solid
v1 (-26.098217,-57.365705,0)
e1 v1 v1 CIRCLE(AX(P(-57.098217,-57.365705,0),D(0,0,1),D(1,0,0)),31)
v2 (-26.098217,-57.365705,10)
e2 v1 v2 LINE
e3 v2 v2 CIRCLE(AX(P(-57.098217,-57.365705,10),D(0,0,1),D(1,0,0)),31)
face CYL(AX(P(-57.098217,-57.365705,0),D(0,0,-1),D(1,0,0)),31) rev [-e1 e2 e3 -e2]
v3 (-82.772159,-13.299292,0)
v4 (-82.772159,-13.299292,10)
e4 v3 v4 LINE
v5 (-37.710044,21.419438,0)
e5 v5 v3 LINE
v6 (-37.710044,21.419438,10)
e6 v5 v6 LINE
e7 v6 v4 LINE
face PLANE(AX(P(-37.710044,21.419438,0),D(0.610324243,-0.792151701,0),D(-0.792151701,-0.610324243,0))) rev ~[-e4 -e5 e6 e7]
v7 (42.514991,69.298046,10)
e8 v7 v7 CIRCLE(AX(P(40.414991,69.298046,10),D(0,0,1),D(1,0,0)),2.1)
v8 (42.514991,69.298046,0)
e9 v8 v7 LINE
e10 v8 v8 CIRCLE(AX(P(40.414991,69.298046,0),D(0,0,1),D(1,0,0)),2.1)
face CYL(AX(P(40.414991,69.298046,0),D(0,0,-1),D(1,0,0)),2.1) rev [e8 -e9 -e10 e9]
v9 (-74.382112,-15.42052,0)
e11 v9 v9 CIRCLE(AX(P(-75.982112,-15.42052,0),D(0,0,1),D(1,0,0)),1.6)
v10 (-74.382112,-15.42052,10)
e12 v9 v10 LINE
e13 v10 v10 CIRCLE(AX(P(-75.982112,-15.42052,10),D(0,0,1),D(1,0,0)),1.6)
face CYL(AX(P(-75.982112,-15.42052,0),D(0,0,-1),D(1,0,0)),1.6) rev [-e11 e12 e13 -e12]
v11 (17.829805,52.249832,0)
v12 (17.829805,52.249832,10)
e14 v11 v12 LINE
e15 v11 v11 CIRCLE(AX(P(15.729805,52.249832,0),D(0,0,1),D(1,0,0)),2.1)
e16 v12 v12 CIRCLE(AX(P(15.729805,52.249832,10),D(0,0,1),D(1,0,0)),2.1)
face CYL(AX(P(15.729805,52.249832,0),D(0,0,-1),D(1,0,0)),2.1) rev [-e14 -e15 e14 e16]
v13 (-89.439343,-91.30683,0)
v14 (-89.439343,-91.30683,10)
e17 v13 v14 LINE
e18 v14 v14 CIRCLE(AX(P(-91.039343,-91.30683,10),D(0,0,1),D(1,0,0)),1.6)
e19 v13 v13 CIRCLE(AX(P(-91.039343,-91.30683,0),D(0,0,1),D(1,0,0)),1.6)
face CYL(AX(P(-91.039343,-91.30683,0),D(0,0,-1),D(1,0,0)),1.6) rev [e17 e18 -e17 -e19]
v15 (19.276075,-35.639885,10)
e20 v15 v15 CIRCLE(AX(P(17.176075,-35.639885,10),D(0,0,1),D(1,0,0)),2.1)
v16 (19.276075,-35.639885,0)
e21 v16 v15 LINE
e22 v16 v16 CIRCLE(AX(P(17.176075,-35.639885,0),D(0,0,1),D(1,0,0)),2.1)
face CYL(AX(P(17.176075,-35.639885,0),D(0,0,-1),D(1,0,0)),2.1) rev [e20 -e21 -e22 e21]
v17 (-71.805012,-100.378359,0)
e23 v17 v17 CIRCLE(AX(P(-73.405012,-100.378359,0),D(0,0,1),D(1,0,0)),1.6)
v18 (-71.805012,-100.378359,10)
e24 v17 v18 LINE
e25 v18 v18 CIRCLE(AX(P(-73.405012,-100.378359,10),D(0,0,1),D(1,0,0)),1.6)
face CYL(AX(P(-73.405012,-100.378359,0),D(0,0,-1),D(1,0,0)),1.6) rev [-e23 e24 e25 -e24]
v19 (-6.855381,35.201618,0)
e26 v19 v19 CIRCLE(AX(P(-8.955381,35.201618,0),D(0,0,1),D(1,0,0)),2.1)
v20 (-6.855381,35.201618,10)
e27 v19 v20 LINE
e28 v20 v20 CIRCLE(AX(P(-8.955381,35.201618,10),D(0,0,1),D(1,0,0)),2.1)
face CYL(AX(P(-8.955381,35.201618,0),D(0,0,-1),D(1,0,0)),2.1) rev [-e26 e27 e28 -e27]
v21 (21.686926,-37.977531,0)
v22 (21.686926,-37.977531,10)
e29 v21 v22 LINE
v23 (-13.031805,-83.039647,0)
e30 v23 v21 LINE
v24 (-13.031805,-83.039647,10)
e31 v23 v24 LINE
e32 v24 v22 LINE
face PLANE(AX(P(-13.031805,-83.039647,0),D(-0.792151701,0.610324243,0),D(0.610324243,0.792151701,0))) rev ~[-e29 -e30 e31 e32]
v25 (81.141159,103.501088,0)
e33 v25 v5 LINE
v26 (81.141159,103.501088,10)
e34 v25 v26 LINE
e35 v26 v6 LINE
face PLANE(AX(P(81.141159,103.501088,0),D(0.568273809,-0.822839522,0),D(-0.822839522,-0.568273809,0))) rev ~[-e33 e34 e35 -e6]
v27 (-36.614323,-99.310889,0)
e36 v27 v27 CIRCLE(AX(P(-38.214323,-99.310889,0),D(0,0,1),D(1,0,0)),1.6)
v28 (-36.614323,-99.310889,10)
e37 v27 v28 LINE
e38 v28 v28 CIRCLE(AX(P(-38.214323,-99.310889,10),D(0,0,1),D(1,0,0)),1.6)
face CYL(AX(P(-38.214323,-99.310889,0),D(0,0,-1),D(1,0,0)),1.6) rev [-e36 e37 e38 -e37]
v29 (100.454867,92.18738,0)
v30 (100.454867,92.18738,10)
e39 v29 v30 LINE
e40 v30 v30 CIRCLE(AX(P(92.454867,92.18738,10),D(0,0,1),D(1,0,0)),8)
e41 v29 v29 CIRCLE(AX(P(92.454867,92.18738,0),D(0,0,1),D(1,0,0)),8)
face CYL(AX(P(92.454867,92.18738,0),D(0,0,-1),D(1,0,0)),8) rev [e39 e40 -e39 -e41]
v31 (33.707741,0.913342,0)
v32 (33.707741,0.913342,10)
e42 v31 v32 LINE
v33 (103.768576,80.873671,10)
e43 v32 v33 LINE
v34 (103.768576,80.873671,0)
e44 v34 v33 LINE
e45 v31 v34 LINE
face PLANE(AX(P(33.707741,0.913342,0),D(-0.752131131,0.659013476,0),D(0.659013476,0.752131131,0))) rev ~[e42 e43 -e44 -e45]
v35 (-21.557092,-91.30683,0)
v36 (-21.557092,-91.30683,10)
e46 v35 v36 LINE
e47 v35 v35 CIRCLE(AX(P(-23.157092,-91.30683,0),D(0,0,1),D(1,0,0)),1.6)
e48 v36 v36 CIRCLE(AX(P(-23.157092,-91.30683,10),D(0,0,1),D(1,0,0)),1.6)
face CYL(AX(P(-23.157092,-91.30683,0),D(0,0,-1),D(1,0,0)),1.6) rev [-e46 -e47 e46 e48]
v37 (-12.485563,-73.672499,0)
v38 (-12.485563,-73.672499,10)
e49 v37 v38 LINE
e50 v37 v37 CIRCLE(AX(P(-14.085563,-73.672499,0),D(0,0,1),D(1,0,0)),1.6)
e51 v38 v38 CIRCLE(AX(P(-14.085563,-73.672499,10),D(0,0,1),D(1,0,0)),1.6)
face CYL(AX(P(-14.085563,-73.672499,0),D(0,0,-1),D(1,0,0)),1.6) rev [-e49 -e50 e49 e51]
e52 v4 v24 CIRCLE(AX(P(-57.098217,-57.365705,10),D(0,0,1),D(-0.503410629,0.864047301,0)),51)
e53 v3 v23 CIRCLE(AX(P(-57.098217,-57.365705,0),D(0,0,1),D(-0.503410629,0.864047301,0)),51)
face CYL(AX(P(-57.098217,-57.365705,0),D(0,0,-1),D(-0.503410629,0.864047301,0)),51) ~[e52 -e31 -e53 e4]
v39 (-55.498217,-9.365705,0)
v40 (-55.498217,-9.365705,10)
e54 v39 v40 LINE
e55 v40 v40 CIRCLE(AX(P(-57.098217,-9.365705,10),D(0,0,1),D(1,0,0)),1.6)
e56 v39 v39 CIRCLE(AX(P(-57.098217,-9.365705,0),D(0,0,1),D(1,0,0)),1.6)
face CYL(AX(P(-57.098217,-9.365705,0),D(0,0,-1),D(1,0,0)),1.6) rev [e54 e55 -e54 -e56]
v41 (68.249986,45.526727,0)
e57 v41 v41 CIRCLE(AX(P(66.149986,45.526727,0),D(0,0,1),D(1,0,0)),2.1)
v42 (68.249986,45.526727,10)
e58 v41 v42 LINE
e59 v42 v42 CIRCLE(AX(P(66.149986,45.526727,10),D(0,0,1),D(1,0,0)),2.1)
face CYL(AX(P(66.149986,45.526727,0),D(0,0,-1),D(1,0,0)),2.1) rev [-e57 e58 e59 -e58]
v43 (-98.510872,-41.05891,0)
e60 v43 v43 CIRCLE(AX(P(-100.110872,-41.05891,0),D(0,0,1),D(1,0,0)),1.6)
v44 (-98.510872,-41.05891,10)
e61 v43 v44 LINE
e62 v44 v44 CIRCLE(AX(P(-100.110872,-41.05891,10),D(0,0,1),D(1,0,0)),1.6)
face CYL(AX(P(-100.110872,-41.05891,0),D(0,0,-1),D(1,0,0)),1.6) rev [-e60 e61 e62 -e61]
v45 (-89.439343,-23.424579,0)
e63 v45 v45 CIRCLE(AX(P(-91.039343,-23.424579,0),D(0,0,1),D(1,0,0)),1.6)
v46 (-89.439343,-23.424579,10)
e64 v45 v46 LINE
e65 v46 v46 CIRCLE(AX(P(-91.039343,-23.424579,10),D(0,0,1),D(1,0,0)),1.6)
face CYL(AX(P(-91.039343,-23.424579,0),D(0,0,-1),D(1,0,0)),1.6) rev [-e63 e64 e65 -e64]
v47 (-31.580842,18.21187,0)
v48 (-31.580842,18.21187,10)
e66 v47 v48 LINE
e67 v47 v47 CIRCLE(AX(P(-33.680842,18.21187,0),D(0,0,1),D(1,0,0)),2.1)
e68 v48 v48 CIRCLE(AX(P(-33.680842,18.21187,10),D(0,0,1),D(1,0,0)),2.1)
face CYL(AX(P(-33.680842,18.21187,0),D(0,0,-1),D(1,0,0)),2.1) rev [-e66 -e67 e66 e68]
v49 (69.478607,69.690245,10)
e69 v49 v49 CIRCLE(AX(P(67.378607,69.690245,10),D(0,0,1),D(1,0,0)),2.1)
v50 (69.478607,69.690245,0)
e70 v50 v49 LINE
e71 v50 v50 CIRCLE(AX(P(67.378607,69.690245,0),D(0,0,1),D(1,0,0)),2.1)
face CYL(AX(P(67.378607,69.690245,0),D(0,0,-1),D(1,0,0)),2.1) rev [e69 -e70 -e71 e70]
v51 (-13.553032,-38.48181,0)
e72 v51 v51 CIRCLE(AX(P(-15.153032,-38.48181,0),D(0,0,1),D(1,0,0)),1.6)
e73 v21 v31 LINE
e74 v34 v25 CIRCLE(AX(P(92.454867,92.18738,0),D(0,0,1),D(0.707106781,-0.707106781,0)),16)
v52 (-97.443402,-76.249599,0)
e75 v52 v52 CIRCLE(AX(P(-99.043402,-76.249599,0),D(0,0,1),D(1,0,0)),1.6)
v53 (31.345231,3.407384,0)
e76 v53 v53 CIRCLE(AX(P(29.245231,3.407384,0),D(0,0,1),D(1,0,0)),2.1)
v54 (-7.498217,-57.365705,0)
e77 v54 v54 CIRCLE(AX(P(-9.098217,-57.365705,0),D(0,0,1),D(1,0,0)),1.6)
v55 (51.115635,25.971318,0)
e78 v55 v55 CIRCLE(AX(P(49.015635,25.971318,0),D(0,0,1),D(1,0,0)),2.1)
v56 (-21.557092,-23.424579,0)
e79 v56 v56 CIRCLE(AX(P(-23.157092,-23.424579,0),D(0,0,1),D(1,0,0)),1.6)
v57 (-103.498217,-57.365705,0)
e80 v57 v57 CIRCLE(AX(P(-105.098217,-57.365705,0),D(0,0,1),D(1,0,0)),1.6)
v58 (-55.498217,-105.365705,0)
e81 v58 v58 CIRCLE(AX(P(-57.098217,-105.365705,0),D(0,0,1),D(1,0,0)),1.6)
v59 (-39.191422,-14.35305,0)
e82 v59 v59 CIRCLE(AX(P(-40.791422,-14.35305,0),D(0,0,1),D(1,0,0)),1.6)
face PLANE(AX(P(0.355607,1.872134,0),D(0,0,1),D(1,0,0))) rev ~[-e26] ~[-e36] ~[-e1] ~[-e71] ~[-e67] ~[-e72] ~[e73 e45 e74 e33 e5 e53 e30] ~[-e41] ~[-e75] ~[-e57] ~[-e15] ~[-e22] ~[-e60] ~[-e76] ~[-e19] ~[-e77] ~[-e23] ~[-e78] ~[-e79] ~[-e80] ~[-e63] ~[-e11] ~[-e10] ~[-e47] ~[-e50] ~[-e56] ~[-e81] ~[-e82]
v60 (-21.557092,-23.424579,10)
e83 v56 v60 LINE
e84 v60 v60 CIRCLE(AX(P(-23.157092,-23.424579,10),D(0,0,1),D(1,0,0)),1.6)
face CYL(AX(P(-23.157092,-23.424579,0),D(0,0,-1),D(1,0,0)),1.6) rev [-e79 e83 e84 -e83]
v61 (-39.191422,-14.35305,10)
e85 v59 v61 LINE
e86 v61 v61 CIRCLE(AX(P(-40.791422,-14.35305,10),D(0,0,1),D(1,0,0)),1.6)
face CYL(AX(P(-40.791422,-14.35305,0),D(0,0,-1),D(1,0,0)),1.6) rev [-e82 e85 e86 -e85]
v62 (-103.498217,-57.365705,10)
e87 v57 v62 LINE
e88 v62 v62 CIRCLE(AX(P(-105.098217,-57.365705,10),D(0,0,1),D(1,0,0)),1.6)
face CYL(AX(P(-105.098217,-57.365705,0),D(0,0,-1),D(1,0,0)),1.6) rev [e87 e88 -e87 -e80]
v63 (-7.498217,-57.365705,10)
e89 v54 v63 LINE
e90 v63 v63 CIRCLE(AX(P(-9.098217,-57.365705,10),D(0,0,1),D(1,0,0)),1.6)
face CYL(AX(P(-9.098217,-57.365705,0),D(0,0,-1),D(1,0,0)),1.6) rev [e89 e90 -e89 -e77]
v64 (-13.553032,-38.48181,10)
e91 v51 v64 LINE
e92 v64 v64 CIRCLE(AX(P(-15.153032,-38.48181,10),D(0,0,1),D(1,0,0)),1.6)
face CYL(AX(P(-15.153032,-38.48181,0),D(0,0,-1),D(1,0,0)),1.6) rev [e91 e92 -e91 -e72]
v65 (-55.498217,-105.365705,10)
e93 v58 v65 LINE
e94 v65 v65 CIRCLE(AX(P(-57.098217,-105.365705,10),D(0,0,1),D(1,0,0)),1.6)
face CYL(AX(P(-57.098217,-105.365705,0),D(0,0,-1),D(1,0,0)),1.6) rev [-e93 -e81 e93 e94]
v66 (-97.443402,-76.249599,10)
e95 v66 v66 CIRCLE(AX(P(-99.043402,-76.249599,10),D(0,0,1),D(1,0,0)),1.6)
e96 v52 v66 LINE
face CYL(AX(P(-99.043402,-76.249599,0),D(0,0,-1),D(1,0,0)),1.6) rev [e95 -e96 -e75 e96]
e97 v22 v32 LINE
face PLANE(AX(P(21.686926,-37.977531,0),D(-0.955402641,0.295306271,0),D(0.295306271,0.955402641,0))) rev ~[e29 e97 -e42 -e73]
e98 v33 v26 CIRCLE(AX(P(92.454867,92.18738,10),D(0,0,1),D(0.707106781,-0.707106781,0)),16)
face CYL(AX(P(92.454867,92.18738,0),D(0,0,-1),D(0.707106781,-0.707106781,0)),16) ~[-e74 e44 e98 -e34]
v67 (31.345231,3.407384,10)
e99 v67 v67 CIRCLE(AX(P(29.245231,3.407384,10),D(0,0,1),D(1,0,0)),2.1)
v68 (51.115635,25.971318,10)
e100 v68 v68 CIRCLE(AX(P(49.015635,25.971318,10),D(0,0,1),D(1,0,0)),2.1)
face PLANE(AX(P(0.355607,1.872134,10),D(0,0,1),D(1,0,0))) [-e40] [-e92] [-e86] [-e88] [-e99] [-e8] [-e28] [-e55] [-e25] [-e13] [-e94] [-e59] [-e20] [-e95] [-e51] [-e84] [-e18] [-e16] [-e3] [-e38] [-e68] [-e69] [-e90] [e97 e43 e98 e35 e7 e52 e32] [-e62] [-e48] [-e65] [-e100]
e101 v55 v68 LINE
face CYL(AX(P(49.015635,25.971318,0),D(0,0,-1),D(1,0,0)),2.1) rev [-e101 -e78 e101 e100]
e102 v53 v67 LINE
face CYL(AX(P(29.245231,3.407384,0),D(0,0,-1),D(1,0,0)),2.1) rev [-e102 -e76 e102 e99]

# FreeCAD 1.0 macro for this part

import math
import FreeCAD as App
import Part
import Sketcher

V = App.Vector
Q = App.Units.Quantity

doc = App.newDocument("Part")
body = doc.addObject("PartDesign::Body", "Body")

# Sketch on XY plane
sketch1 = body.newObject("Sketcher::SketchObject", "Sketch")
sketch1.AttachmentSupport = (doc.getObject("XY_Plane"), [""])
sketch1.MapMode = "FlatFace"
sketch1.addGeometry([
    Part.LineSegment(V(81.141159, 103.501088, 0), V(-37.710044, 21.419438, 0)),  # 0
    Part.LineSegment(V(-37.710044, 21.419438, 0), V(-82.772159, -13.299292, 0)),  # 1
    Part.ArcOfCircle(Part.Circle(V(-57.098217, -57.365705, 0), V(0, 0, 1), 51), math.radians(120.225903), math.radians(329.774097)),  # 2
    Part.LineSegment(V(-13.031805, -83.039647, 0), V(21.686926, -37.977531, 0)),  # 3
    Part.LineSegment(V(21.686926, -37.977531, 0), V(33.707741, 0.913342, 0)),  # 4
    Part.LineSegment(V(33.707741, 0.913342, 0), V(103.768576, 80.873671, 0)),  # 5
    Part.ArcOfCircle(Part.Circle(V(92.454867, 92.18738, 0), V(0, 0, 1), 16), math.radians(-45), math.radians(135)),  # 6
    Part.Circle(V(-91.039343, -91.30683, 0), V(0, 0, 1), 1.6),  # 7
    Part.Circle(V(-73.405012, -100.378359, 0), V(0, 0, 1), 1.6),  # 8
    Part.Circle(V(-57.098217, -105.365705, 0), V(0, 0, 1), 1.6),  # 9
    Part.Circle(V(-99.043402, -76.249599, 0), V(0, 0, 1), 1.6),  # 10
    Part.Circle(V(-105.098217, -57.365705, 0), V(0, 0, 1), 1.6),  # 11
    Part.Circle(V(-57.098217, -57.365705, 0), V(0, 0, 1), 31),  # 12
    Part.Circle(V(-38.214323, -99.310889, 0), V(0, 0, 1), 1.6),  # 13
    Part.Circle(V(-23.157092, -91.30683, 0), V(0, 0, 1), 1.6),  # 14
    Part.Circle(V(-14.085563, -73.672499, 0), V(0, 0, 1), 1.6),  # 15
    Part.Circle(V(-9.098217, -57.365705, 0), V(0, 0, 1), 1.6),  # 16
    Part.Circle(V(-100.110872, -41.05891, 0), V(0, 0, 1), 1.6),  # 17
    Part.Circle(V(-91.039343, -23.424579, 0), V(0, 0, 1), 1.6),  # 18
    Part.Circle(V(-75.982112, -15.42052, 0), V(0, 0, 1), 1.6),  # 19
    Part.Circle(V(-57.098217, -9.365705, 0), V(0, 0, 1), 1.6),  # 20
    Part.Circle(V(-15.153032, -38.48181, 0), V(0, 0, 1), 1.6),  # 21
    Part.Circle(V(-40.791422, -14.35305, 0), V(0, 0, 1), 1.6),  # 22
    Part.Circle(V(-23.157092, -23.424579, 0), V(0, 0, 1), 1.6),  # 23
    Part.Circle(V(17.176075, -35.639885, 0), V(0, 0, 1), 2.1),  # 24
    Part.Circle(V(-33.680842, 18.21187, 0), V(0, 0, 1), 2.1),  # 25
    Part.Circle(V(-8.955381, 35.201618, 0), V(0, 0, 1), 2.1),  # 26
    Part.Circle(V(29.245231, 3.407384, 0), V(0, 0, 1), 2.1),  # 27
    Part.Circle(V(49.015635, 25.971318, 0), V(0, 0, 1), 2.1),  # 28
    Part.Circle(V(66.149986, 45.526727, 0), V(0, 0, 1), 2.1),  # 29
    Part.Circle(V(15.729805, 52.249832, 0), V(0, 0, 1), 2.1),  # 30
    Part.Circle(V(40.414991, 69.298046, 0), V(0, 0, 1), 2.1),  # 31
    Part.Circle(V(67.378607, 69.690245, 0), V(0, 0, 1), 2.1),  # 32
    Part.Circle(V(92.454867, 92.18738, 0), V(0, 0, 1), 8),  # 33
], False)
sketch1.addConstraint([
    Sketcher.Constraint("Coincident", 0, 2, 1, 1),
    Sketcher.Constraint("Coincident", 1, 2, 2, 1),
    Sketcher.Constraint("Coincident", 2, 2, 3, 1),
    Sketcher.Constraint("Coincident", 3, 2, 4, 1),
    Sketcher.Constraint("Coincident", 4, 2, 5, 1),
    Sketcher.Constraint("Coincident", 5, 2, 6, 1),
    Sketcher.Constraint("Coincident", 6, 2, 0, 1),
    Sketcher.Constraint("Coincident", 12, 3, 2, 3),
    Sketcher.Constraint("Coincident", 33, 3, 6, 3),
    Sketcher.Constraint("Equal", 7, 8),
    Sketcher.Constraint("Equal", 8, 9),
    Sketcher.Constraint("Equal", 9, 10),
    Sketcher.Constraint("Equal", 10, 11),
    Sketcher.Constraint("Equal", 11, 13),
    Sketcher.Constraint("Equal", 13, 14),
    Sketcher.Constraint("Equal", 14, 15),
    Sketcher.Constraint("Equal", 15, 16),
    Sketcher.Constraint("Equal", 16, 17),
    Sketcher.Constraint("Equal", 17, 18),
    Sketcher.Constraint("Equal", 18, 19),
    Sketcher.Constraint("Equal", 19, 20),
    Sketcher.Constraint("Equal", 20, 21),
    Sketcher.Constraint("Equal", 21, 22),
    Sketcher.Constraint("Equal", 22, 23),
    Sketcher.Constraint("Equal", 24, 25),
    Sketcher.Constraint("Equal", 25, 26),
    Sketcher.Constraint("Equal", 26, 27),
    Sketcher.Constraint("Equal", 27, 28),
    Sketcher.Constraint("Equal", 28, 29),
    Sketcher.Constraint("Equal", 29, 30),
    Sketcher.Constraint("Equal", 30, 31),
    Sketcher.Constraint("Equal", 31, 32),
    Sketcher.Constraint("Horizontal", 2, 3, 11, 3),
    Sketcher.Constraint("Horizontal", 7, 3, 14, 3),
    Sketcher.Constraint("Horizontal", 12, 3, 16, 3),
    Sketcher.Constraint("Horizontal", 18, 3, 23, 3),
    Sketcher.Constraint("Vertical", 2, 3, 9, 3),
    Sketcher.Constraint("Vertical", 7, 3, 18, 3),
    Sketcher.Constraint("Vertical", 12, 3, 20, 3),
    Sketcher.Constraint("Vertical", 14, 3, 23, 3),
    Sketcher.Constraint("Equal", 1, 3),
    Sketcher.Constraint("Diameter", 12, Q("62 mm")),
    Sketcher.Constraint("Diameter", 33, Q("16 mm")),
    Sketcher.Constraint("Radius", 2, Q("51 mm")),
    Sketcher.Constraint("Radius", 6, Q("16 mm")),
    Sketcher.Constraint("Diameter", 7, Q("3.2 mm")),
    Sketcher.Constraint("Diameter", 24, Q("4.2 mm")),
    Sketcher.Constraint("DistanceY", 9, 3, 2, 3, Q("48 mm")),
    Sketcher.Constraint("DistanceX", 11, 3, 2, 3, Q("48 mm")),
    Sketcher.Constraint("DistanceX", 2, 3, 16, 3, Q("48 mm")),
    Sketcher.Constraint("DistanceY", 2, 3, 20, 3, Q("48 mm")),
    Sketcher.Constraint("DistanceX", 10, 3, -1, 1, Q("99.043402 mm")),
    Sketcher.Constraint("DistanceY", 10, 3, -1, 1, Q("76.249599 mm")),
    Sketcher.Constraint("DistanceY", 15, 3, -1, 1, Q("73.672499 mm")),
    Sketcher.Constraint("DistanceY", 28, 3, 26, 3, Q("9.2303 mm")),
    Sketcher.Constraint("DistanceY", 31, 3, 32, 3, Q("0.392199 mm")),
    Sketcher.Constraint("DistanceX", 30, 3, 32, 3, Q("51.648802 mm")),
    Sketcher.Constraint("DistanceX", 0, 2, 25, 3, Q("4.029201 mm")),
    Sketcher.Constraint("Distance", 0, Q("144.440318 mm")),
    Sketcher.Constraint("DistanceY", -1, 1, 6, 3, Q("92.18738 mm")),
    Sketcher.Constraint("DistanceY", 7, 3, -1, 1, Q("91.30683 mm")),
    Sketcher.Constraint("DistanceX", 8, 3, -1, 1, Q("73.405012 mm")),
    Sketcher.Constraint("DistanceY", 8, 3, -1, 1, Q("100.378359 mm")),
    Sketcher.Constraint("DistanceY", 13, 3, -1, 1, Q("99.310889 mm")),
    Sketcher.Constraint("DistanceX", 14, 3, -1, 1, Q("23.157092 mm")),
    Sketcher.Constraint("DistanceX", 17, 3, -1, 1, Q("100.110872 mm")),
    Sketcher.Constraint("DistanceY", 17, 3, -1, 1, Q("41.05891 mm")),
    Sketcher.Constraint("DistanceY", 18, 3, -1, 1, Q("23.424579 mm")),
    Sketcher.Constraint("DistanceX", 19, 3, -1, 1, Q("75.982112 mm")),
    Sketcher.Constraint("DistanceY", 19, 3, -1, 1, Q("15.42052 mm")),
    Sketcher.Constraint("DistanceY", 21, 3, -1, 1, Q("38.48181 mm")),
    Sketcher.Constraint("DistanceY", 22, 3, -1, 1, Q("14.35305 mm")),
    Sketcher.Constraint("DistanceY", -1, 1, 25, 3, Q("18.21187 mm")),
    Sketcher.Constraint("DistanceX", 26, 3, -1, 1, Q("8.955381 mm")),
    Sketcher.Constraint("DistanceX", -1, 1, 27, 3, Q("29.245231 mm")),
    Sketcher.Constraint("DistanceX", -1, 1, 31, 3, Q("40.414991 mm")),
    Sketcher.Constraint("DistanceY", -1, 1, 0, 2, Q("21.419438 mm")),
    Sketcher.Constraint("DistanceX", 1, 2, -1, 1, Q("82.772159 mm")),
    Sketcher.Constraint("DistanceY", 3, 2, -1, 1, Q("37.977531 mm")),
    Sketcher.Constraint("DistanceX", -1, 1, 4, 2, Q("33.707741 mm")),
    Sketcher.Constraint("DistanceY", -1, 1, 4, 2, Q("0.913342 mm")),
    Sketcher.Constraint("DistanceY", -1, 1, 5, 2, Q("80.873671 mm")),
    Sketcher.Constraint("DistanceX", -1, 1, 6, 2, Q("81.141159 mm")),
    Sketcher.Constraint("DistanceY", -1, 1, 6, 2, Q("103.501088 mm")),
    Sketcher.Constraint("DistanceX", 7, 3, 6, 3, Q("183.49421 mm")),
    Sketcher.Constraint("DistanceX", 8, 3, 13, 3, Q("35.190689 mm")),
    Sketcher.Constraint("DistanceX", 14, 3, 15, 3, Q("9.071529 mm")),
    Sketcher.Constraint("DistanceX", 21, 3, 15, 3, Q("1.06747 mm")),
    Sketcher.Constraint("DistanceX", 22, 3, 21, 3, Q("25.63839 mm")),
    Sketcher.Constraint("DistanceY", 16, 3, 24, 3, Q("21.725819 mm")),
    Sketcher.Constraint("DistanceY", 22, 3, 26, 3, Q("49.554668 mm")),
    Sketcher.Constraint("DistanceY", 24, 3, 27, 3, Q("39.047269 mm")),
    Sketcher.Constraint("DistanceX", 24, 3, 28, 3, Q("31.83956 mm")),
    Sketcher.Constraint("DistanceX", 28, 3, 6, 3, Q("43.439232 mm")),
    Sketcher.Constraint("DistanceX", 28, 3, 29, 3, Q("17.13435 mm")),
    Sketcher.Constraint("DistanceY", 28, 3, 29, 3, Q("19.555409 mm")),
    Sketcher.Constraint("DistanceX", 30, 3, 28, 3, Q("33.28583 mm")),
    Sketcher.Constraint("DistanceY", 27, 3, 30, 3, Q("48.842448 mm")),
    Sketcher.Constraint("DistanceY", 29, 3, 31, 3, Q("23.771319 mm")),
    Sketcher.Constraint("DistanceX", 24, 3, 3, 2, Q("4.51085 mm")),
    Sketcher.Constraint("DistanceY", 4, 2, 30, 3, Q("51.336491 mm")),
    Sketcher.Constraint("Distance", 1, Q("56.885714 mm")),
])
pad1 = body.newObject("PartDesign::Pad", "Pad")
pad1.Profile = sketch1
pad1.Length = 10

doc.recompute()
